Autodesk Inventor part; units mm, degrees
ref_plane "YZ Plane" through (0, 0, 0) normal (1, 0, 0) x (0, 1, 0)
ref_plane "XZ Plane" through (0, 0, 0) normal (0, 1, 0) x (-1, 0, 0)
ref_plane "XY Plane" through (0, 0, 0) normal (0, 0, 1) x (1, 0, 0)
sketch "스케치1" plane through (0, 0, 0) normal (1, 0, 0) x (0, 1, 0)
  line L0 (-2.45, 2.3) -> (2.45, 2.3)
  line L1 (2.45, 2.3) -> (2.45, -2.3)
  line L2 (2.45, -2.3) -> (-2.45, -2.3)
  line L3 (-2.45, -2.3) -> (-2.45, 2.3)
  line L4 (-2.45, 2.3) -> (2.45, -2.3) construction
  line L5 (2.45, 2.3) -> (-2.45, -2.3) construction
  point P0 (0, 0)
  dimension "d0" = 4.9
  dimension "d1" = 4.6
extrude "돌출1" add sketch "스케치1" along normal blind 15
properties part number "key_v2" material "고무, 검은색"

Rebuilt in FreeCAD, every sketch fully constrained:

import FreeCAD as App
import Part
import Sketcher
from FreeCAD import Vector


def add_polygon(sketch, points):
    """Adds a closed chain of lines whose ends are joined by coincident constraints."""
    first, n = sketch.GeometryCount, len(points)
    for a, b in zip(points, points[1:] + points[:1]):
        sketch.addGeometry(Part.LineSegment(App.Vector(*a, 0), App.Vector(*b, 0)), False)
    for i in range(n):
        sketch.addConstraint(Sketcher.Constraint("Coincident", first + i, 2, first + (i + 1) % n, 1))

doc = App.newDocument("Part")
params = doc.addObject("Spreadsheet::Sheet", "Params")
for row, (alias, value) in enumerate([
    ("sketch1_width", "4.9 mm"),
    ("sketch1_height", "4.6 mm"),
    ("pad1_length", "15 mm"),
], start=1):
    params.set(f"A{row}", alias)
    params.set(f"B{row}", "=" + value)
    params.setAlias(f"B{row}", alias)

body = doc.addObject("PartDesign::Body", "Body")

sketch1 = body.newObject("Sketcher::SketchObject", "Sketch")
sketch1.AttachmentSupport = (doc.getObject("YZ_Plane"), [""])
sketch1.MapMode = "FlatFace"
add_polygon(sketch1, [(2.5, 2.3), (-2.5, 2.3), (-2.5, -2.3), (2.5, -2.3)])
sketch1.addConstraint([
    Sketcher.Constraint("Horizontal", 0),
    Sketcher.Constraint("Vertical", 1),
    Sketcher.Constraint("Horizontal", 2),
    Sketcher.Constraint("Vertical", 3),
    Sketcher.Constraint("Symmetric", 0, 2, 2, 2, -1, 1),
    Sketcher.Constraint("DistanceX", 0, 2, 0, 1, 4.9),
    Sketcher.Constraint("DistanceY", 1, 2, 1, 1, 4.6),
])
sketch1.setExpression("Constraints[9]", "Params.sketch1_width")
sketch1.setExpression("Constraints[10]", "Params.sketch1_height")
pad1 = body.newObject("PartDesign::Pad", "Pad")
pad1.Profile = sketch1
pad1.setExpression("Length", "Params.pad1_length")

doc.recompute()
